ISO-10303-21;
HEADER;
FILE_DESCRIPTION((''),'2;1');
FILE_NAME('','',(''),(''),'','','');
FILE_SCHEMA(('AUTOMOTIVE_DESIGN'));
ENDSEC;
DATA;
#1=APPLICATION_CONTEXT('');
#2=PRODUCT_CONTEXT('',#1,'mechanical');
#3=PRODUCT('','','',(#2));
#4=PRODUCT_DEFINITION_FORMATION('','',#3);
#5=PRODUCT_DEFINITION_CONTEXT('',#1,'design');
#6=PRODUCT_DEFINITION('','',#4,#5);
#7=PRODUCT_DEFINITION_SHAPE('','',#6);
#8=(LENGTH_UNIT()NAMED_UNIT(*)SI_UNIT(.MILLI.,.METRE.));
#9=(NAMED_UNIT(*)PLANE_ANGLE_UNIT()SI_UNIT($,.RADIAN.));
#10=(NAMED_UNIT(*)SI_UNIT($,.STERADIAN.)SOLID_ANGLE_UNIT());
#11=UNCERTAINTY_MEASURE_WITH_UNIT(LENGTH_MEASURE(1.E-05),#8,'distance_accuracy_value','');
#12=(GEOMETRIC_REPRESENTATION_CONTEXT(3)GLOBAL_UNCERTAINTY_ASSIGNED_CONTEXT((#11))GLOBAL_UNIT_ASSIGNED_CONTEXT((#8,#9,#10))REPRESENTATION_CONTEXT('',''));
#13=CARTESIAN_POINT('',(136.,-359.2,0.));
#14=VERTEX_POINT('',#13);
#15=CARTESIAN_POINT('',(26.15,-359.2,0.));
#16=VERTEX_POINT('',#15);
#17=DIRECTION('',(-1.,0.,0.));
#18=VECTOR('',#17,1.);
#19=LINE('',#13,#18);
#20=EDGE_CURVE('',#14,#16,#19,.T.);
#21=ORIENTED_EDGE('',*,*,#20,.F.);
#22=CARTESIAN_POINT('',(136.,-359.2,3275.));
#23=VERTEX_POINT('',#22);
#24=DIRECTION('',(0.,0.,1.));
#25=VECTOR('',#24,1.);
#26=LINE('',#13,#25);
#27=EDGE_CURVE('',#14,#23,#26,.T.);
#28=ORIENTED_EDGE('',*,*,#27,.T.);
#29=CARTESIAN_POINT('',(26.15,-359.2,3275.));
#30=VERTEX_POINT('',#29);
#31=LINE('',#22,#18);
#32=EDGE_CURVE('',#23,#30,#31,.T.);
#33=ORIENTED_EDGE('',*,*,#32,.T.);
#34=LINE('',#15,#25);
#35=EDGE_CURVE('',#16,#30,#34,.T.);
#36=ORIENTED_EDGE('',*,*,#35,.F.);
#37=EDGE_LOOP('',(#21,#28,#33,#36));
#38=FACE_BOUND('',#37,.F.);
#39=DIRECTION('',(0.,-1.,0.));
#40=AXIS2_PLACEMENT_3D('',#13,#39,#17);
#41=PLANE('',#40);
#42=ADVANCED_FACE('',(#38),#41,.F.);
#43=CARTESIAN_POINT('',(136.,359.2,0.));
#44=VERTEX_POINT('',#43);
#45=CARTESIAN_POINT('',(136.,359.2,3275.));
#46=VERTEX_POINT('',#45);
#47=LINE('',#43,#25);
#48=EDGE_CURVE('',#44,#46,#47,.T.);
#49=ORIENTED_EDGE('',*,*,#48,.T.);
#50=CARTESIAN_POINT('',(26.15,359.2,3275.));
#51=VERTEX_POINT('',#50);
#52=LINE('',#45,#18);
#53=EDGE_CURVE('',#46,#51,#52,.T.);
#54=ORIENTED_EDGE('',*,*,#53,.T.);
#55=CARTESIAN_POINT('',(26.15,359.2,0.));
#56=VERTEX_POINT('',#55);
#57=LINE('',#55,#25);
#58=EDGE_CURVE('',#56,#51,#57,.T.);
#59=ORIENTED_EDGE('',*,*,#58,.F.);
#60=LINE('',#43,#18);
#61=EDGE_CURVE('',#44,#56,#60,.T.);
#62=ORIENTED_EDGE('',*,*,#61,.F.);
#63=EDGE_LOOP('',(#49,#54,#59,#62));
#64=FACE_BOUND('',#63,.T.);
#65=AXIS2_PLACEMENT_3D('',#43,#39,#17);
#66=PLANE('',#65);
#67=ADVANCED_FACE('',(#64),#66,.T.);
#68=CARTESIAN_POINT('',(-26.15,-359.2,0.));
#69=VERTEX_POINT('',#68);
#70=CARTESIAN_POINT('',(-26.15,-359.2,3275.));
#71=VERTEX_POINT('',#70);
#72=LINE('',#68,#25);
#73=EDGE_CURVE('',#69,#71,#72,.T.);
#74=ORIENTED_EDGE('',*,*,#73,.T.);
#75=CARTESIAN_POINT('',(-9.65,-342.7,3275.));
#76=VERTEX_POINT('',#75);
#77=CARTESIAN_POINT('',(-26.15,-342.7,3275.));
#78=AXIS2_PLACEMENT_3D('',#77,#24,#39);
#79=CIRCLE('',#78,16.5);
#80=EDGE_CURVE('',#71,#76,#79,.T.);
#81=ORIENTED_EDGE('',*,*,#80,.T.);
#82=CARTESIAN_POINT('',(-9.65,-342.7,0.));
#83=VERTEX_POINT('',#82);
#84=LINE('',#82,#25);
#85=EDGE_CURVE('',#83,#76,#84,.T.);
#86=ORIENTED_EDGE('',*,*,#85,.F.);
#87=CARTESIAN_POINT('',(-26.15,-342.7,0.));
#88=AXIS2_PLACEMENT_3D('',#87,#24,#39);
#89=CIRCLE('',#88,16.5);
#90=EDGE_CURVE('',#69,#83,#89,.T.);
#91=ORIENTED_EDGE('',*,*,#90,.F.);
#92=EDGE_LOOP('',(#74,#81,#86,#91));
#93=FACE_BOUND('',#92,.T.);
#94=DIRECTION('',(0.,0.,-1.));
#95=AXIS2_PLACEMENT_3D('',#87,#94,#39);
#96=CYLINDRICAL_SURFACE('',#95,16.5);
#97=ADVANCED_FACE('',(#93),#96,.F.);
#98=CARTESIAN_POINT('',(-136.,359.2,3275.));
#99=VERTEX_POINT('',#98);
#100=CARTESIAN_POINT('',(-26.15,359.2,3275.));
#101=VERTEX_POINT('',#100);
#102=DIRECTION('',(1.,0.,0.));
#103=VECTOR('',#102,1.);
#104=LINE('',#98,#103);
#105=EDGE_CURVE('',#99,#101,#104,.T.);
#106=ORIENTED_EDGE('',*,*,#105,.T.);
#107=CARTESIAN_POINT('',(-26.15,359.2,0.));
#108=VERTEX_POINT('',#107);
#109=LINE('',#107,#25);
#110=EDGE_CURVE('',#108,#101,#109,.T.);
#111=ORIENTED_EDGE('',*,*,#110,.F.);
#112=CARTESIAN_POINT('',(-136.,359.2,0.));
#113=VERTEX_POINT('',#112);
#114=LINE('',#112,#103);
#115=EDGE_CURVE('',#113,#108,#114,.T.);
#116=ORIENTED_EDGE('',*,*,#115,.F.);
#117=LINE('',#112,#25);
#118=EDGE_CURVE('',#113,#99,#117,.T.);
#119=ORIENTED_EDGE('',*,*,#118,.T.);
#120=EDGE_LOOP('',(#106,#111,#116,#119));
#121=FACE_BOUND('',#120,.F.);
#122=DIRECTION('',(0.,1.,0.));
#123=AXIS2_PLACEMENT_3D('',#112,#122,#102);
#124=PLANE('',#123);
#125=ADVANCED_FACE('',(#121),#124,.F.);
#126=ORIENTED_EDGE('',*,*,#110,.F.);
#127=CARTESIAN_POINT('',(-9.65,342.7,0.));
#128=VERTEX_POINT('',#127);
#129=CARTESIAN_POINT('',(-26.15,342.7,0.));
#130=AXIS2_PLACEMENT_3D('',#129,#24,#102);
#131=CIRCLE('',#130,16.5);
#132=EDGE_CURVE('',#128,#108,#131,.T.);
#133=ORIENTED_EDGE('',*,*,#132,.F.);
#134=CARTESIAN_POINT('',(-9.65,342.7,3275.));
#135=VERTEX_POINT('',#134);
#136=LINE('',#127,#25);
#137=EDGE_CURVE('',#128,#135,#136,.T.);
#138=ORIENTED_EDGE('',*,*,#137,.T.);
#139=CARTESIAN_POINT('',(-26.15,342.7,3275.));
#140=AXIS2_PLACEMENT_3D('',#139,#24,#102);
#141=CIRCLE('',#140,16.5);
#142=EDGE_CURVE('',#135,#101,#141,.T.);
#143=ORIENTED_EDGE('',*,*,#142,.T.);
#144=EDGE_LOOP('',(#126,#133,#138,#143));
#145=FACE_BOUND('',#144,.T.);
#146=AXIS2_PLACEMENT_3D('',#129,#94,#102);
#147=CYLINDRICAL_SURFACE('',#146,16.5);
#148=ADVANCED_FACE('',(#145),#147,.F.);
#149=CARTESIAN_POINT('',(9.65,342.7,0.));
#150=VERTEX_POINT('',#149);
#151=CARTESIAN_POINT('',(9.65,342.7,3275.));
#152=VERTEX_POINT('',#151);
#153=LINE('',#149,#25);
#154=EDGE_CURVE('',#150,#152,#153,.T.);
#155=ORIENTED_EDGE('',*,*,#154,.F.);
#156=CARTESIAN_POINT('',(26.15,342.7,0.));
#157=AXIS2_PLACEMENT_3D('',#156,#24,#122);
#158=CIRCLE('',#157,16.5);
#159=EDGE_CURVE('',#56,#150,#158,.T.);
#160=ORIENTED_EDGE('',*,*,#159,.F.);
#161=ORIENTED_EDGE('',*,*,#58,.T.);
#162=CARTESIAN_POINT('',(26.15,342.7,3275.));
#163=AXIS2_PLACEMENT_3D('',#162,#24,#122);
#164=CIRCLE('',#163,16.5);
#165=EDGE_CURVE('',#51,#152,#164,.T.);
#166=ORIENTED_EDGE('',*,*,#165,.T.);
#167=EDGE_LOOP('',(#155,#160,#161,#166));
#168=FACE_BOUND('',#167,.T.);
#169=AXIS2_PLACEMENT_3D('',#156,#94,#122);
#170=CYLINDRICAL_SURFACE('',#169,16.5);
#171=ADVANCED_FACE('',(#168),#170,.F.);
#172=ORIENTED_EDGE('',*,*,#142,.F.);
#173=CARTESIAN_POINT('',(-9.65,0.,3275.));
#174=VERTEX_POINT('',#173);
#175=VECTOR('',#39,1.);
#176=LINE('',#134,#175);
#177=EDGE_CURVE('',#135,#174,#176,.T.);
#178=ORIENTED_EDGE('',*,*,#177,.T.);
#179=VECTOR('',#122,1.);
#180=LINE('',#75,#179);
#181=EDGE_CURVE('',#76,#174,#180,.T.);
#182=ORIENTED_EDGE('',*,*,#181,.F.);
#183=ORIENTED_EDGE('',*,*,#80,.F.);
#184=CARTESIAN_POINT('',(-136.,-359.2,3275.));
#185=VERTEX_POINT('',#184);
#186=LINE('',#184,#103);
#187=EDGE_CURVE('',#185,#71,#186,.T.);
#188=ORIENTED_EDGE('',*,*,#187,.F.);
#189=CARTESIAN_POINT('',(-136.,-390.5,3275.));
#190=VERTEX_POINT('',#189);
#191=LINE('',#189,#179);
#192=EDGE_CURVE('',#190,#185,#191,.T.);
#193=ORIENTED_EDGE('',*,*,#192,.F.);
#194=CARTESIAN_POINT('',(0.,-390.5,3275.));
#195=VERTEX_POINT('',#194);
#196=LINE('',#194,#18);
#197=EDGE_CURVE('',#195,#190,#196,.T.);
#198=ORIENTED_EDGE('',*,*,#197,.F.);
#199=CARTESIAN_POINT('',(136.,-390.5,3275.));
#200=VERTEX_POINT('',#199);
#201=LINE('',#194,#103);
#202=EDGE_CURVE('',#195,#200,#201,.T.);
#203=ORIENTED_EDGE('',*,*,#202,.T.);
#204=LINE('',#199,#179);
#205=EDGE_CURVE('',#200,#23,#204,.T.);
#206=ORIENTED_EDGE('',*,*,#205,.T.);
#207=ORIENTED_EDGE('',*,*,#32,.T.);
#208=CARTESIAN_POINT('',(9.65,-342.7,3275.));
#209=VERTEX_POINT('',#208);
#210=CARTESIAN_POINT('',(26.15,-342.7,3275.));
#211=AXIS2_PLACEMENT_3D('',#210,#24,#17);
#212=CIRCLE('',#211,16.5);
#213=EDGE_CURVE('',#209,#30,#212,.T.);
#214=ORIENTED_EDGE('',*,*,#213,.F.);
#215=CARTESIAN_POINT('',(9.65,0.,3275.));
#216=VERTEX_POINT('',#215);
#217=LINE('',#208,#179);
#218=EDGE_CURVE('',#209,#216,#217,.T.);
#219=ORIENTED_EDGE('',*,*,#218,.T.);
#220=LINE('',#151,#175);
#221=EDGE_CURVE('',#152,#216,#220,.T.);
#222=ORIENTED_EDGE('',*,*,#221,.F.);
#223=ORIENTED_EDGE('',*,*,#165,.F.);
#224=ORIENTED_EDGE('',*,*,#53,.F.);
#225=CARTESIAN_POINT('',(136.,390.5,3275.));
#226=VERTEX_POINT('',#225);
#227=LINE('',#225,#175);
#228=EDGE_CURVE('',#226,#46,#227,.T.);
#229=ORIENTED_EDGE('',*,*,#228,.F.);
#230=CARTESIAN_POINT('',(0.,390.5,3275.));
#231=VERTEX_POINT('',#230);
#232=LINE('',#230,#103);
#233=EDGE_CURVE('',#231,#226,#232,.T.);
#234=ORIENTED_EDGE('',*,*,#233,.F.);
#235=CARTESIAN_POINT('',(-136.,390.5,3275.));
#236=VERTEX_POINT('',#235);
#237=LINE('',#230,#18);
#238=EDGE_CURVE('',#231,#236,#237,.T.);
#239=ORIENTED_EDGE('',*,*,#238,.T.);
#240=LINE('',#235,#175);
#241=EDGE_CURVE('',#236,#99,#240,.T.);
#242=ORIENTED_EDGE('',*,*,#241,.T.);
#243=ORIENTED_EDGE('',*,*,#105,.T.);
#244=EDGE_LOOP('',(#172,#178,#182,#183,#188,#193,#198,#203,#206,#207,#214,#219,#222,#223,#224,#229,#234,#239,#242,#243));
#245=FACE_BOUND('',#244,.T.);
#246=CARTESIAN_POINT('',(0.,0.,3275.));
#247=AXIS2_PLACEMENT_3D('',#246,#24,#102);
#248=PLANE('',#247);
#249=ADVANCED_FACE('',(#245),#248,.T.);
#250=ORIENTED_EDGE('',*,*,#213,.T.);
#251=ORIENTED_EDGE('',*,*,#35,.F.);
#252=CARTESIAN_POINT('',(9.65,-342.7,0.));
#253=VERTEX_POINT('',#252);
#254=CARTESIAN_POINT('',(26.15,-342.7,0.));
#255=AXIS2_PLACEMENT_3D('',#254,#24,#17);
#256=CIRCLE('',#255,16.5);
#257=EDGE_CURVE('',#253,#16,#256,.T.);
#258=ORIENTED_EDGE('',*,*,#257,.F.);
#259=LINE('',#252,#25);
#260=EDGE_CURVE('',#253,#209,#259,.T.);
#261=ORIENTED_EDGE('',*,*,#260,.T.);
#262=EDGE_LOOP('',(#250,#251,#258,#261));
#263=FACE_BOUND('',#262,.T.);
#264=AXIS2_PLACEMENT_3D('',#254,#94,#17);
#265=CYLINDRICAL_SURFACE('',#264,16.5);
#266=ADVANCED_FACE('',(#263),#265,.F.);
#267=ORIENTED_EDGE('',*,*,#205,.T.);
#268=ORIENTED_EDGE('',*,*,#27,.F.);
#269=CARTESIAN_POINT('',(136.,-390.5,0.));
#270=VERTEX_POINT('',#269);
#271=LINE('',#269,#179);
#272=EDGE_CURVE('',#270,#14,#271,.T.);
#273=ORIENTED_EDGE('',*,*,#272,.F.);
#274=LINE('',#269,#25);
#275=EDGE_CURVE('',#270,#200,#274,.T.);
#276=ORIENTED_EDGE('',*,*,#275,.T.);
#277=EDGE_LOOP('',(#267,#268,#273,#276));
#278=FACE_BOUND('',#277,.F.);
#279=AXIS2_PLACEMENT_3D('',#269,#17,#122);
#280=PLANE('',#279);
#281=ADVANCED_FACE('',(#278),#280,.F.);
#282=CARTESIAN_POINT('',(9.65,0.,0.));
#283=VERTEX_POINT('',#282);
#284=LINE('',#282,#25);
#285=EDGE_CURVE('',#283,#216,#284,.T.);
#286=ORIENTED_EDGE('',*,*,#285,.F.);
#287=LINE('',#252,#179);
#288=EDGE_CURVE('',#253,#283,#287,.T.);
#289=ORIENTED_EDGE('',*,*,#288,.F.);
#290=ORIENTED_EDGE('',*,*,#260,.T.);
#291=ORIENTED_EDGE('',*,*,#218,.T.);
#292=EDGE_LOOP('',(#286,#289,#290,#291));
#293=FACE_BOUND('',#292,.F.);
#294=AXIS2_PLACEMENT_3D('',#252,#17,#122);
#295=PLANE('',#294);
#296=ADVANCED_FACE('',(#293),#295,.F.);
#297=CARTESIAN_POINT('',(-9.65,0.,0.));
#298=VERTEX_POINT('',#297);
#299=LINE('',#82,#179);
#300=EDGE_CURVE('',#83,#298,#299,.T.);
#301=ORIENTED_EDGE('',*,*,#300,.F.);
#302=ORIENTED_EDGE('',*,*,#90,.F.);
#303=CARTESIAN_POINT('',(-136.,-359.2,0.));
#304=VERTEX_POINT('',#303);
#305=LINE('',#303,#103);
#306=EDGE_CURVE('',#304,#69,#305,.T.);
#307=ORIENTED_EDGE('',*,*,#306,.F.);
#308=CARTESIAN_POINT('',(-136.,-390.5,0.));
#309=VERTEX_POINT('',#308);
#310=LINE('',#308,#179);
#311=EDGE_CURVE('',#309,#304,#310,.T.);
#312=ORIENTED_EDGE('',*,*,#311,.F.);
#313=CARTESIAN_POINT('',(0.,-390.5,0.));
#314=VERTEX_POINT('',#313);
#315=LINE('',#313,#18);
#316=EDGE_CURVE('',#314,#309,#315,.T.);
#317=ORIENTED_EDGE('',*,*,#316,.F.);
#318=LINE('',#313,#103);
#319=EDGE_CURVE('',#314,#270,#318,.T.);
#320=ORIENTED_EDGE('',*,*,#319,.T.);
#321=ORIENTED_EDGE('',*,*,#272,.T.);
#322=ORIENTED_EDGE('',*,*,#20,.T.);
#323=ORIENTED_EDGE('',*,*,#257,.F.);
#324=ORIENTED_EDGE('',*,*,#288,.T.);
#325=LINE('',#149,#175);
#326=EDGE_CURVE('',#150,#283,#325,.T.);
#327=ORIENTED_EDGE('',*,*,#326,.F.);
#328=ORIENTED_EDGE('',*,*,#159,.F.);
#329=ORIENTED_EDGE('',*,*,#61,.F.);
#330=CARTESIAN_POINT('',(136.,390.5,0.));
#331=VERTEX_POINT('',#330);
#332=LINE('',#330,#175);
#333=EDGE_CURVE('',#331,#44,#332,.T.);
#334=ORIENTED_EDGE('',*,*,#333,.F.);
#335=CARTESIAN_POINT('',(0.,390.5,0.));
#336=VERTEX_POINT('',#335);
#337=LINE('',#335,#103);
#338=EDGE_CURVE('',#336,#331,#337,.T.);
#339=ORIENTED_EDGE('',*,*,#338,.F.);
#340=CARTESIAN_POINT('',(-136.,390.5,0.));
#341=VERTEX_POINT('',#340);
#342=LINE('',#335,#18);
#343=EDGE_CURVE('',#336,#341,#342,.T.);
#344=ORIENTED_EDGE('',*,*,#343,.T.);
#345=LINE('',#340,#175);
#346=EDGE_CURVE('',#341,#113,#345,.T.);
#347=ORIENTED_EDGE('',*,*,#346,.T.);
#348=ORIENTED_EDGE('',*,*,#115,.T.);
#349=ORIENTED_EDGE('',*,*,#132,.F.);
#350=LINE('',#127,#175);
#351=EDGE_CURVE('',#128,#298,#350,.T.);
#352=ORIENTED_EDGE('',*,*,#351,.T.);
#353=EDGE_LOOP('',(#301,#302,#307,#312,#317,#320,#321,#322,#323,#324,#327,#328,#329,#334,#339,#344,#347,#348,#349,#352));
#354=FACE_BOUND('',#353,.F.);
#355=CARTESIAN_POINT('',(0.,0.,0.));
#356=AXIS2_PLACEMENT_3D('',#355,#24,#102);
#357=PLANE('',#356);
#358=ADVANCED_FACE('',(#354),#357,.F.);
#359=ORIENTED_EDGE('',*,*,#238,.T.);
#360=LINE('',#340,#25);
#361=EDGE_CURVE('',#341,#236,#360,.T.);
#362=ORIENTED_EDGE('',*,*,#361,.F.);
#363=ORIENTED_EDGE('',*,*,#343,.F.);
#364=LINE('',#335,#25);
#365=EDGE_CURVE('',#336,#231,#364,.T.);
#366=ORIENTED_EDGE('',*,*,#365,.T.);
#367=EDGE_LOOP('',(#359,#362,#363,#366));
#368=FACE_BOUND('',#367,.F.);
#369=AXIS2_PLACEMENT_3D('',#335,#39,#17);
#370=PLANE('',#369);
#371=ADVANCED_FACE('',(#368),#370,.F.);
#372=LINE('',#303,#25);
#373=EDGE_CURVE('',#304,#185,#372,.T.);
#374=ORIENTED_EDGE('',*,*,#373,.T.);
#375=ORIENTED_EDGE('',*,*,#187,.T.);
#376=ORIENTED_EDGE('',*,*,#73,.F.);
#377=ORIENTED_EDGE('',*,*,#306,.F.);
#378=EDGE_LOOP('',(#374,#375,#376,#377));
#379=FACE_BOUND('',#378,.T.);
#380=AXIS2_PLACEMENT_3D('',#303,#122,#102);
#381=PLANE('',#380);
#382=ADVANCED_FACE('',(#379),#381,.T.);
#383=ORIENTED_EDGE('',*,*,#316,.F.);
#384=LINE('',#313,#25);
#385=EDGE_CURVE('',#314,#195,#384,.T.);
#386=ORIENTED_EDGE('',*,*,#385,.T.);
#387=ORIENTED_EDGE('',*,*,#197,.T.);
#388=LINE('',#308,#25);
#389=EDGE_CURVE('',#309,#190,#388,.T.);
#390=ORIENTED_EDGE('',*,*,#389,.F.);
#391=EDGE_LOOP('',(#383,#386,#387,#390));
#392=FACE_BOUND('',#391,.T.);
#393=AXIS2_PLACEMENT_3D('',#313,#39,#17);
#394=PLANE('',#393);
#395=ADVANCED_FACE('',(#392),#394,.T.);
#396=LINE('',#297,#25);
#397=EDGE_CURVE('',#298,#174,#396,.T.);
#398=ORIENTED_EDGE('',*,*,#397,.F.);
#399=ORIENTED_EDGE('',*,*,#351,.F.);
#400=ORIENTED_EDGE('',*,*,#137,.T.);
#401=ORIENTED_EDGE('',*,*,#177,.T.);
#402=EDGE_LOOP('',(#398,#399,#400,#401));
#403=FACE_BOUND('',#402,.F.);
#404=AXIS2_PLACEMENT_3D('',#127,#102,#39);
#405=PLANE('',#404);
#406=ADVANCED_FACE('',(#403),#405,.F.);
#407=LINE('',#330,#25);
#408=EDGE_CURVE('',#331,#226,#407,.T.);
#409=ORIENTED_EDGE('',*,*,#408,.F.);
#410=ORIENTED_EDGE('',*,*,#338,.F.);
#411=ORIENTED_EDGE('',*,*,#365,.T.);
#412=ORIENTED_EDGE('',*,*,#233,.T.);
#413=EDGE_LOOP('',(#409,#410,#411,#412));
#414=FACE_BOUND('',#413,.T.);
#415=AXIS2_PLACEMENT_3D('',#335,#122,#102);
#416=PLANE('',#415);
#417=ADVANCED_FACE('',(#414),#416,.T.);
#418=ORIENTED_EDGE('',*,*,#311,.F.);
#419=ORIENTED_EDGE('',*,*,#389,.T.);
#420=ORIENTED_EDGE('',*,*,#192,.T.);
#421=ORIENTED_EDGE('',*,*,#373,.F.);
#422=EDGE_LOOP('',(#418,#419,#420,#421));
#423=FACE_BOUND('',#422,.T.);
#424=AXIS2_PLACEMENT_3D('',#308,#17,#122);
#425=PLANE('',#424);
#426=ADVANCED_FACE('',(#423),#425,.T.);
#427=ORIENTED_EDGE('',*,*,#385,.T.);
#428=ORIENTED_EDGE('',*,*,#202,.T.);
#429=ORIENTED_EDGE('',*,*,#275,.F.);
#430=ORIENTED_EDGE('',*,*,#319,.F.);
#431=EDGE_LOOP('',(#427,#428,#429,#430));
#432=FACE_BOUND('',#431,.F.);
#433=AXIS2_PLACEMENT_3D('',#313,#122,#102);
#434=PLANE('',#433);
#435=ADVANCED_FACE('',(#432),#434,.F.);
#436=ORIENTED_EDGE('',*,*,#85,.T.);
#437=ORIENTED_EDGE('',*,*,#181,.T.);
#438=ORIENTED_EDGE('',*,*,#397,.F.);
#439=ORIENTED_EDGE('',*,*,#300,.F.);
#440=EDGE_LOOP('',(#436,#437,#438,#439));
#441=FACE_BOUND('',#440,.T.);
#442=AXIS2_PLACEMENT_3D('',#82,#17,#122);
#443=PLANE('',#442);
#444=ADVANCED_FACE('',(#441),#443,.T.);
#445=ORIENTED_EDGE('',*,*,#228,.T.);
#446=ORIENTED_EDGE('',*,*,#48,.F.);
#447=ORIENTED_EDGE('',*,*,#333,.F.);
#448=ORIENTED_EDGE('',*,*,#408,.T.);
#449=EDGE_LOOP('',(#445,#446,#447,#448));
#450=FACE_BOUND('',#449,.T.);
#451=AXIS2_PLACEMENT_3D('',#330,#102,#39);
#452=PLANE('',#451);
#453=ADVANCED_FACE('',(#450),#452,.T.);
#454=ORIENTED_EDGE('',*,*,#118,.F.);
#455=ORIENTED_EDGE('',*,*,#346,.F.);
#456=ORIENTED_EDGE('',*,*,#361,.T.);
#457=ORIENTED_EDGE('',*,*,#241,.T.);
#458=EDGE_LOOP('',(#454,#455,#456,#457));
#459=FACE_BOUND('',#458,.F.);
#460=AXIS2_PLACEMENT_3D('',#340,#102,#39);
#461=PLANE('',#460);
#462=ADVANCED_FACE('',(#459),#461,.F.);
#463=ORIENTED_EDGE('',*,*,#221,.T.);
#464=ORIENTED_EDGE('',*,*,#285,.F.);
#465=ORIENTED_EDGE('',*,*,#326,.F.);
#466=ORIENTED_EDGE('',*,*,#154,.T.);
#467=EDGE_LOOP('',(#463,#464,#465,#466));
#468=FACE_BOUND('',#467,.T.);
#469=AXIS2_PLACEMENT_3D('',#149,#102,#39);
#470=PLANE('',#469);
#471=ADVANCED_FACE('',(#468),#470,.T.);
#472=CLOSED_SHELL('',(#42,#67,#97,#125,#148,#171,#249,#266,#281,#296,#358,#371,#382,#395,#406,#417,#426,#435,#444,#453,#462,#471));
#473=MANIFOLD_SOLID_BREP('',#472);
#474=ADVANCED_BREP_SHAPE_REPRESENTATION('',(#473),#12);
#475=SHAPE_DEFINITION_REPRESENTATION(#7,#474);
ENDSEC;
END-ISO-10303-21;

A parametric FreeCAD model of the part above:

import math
import FreeCAD as App
import Part
import Sketcher
from FreeCAD import Vector

doc = App.newDocument("Part")
body = doc.addObject("PartDesign::Body", "Body")

sketch1 = doc.addObject("Sketcher::SketchObject", "Sketch")
body.addObject(sketch1)
sketch1.AttachmentSupport = (doc.XY_Plane, [""])
sketch1.MapMode = "FlatFace"
sketch1.addGeometry([
    Part.LineSegment(Vector(-136, -359, 0), Vector(-136, -390, 0)),
    Part.LineSegment(Vector(-136, -390, 0), Vector(136, -390, 0)),
    Part.LineSegment(Vector(136, -390, 0), Vector(136, -359, 0)),
    Part.LineSegment(Vector(136, -359, 0), Vector(26, -359, 0)),
    Part.ArcOfCircle(Part.Circle(Vector(26, -343, 0), Vector(0, 0, 1), 16), math.radians(180), math.radians(270)),
    Part.LineSegment(Vector(10, -343, 0), Vector(10, 343, 0)),
    Part.ArcOfCircle(Part.Circle(Vector(26, 343, 0), Vector(0, 0, 1), 16), math.radians(90), math.radians(180)),
    Part.LineSegment(Vector(26, 359, 0), Vector(136, 359, 0)),
    Part.LineSegment(Vector(136, 359, 0), Vector(136, 390, 0)),
    Part.LineSegment(Vector(136, 390, 0), Vector(-136, 390, 0)),
    Part.LineSegment(Vector(-136, 390, 0), Vector(-136, 359, 0)),
    Part.LineSegment(Vector(-136, 359, 0), Vector(-26, 359, 0)),
    Part.ArcOfCircle(Part.Circle(Vector(-26, 343, 0), Vector(0, 0, 1), 16), math.radians(0), math.radians(90)),
    Part.LineSegment(Vector(-10, 343, 0), Vector(-10, -343, 0)),
    Part.ArcOfCircle(Part.Circle(Vector(-26, -343, 0), Vector(0, 0, 1), 16), math.radians(-90), math.radians(0)),
    Part.LineSegment(Vector(-26, -359, 0), Vector(-136, -359, 0)),
], False)
sketch1.addConstraint([
    Sketcher.Constraint("Coincident", 0, 2, 1, 1),
    Sketcher.Constraint("Coincident", 1, 2, 2, 1),
    Sketcher.Constraint("Coincident", 2, 2, 3, 1),
    Sketcher.Constraint("Tangent", 3, 2, 4, 2),
    Sketcher.Constraint("Tangent", 4, 1, 5, 1),
    Sketcher.Constraint("Tangent", 5, 2, 6, 2),
    Sketcher.Constraint("Tangent", 6, 1, 7, 1),
    Sketcher.Constraint("Coincident", 7, 2, 8, 1),
    Sketcher.Constraint("Coincident", 8, 2, 9, 1),
    Sketcher.Constraint("Coincident", 9, 2, 10, 1),
    Sketcher.Constraint("Coincident", 10, 2, 11, 1),
    Sketcher.Constraint("Tangent", 11, 2, 12, 2),
    Sketcher.Constraint("Tangent", 12, 1, 13, 1),
    Sketcher.Constraint("Tangent", 13, 2, 14, 2),
    Sketcher.Constraint("Tangent", 14, 1, 15, 1),
    Sketcher.Constraint("Coincident", 15, 2, 0, 1),
    Sketcher.Constraint("Vertical", 0),
    Sketcher.Constraint("Horizontal", 1),
    Sketcher.Constraint("Vertical", 2),
    Sketcher.Constraint("Horizontal", 3),
    Sketcher.Constraint("Vertical", 5),
    Sketcher.Constraint("Horizontal", 7),
    Sketcher.Constraint("Vertical", 8),
    Sketcher.Constraint("Horizontal", 9),
    Sketcher.Constraint("Vertical", 10),
    Sketcher.Constraint("Horizontal", 11),
    Sketcher.Constraint("Vertical", 13),
    Sketcher.Constraint("Horizontal", 15),
    Sketcher.Constraint("Equal", 4, 6),
    Sketcher.Constraint("Equal", 6, 12),
    Sketcher.Constraint("Equal", 12, 14),
    Sketcher.Constraint("Symmetric", 4, 3, 12, 3, -1, 1),
    Sketcher.Constraint("Symmetric", 0, 2, 8, 2, -1, 1),
    Sketcher.Constraint("Symmetric", 7, 2, 10, 2, -2),
    Sketcher.Constraint("Symmetric", 2, 2, 15, 2, -2),
    Sketcher.Constraint("Radius", 4, 16.5),
    Sketcher.Constraint("DistanceY", 0, 2, 0, 1, 31.3),
    Sketcher.Constraint("DistanceX", 0, 2, -1, 1, 136.0),
    Sketcher.Constraint("DistanceY", 0, 2, -1, 1, 390.5),
    Sketcher.Constraint("DistanceX", -1, 1, 4, 1, 9.65),
])
pad1 = doc.addObject("PartDesign::Pad", "Pad")
body.addObject(pad1)
pad1.Profile = sketch1
pad1.Length = 3275

doc.recompute()
